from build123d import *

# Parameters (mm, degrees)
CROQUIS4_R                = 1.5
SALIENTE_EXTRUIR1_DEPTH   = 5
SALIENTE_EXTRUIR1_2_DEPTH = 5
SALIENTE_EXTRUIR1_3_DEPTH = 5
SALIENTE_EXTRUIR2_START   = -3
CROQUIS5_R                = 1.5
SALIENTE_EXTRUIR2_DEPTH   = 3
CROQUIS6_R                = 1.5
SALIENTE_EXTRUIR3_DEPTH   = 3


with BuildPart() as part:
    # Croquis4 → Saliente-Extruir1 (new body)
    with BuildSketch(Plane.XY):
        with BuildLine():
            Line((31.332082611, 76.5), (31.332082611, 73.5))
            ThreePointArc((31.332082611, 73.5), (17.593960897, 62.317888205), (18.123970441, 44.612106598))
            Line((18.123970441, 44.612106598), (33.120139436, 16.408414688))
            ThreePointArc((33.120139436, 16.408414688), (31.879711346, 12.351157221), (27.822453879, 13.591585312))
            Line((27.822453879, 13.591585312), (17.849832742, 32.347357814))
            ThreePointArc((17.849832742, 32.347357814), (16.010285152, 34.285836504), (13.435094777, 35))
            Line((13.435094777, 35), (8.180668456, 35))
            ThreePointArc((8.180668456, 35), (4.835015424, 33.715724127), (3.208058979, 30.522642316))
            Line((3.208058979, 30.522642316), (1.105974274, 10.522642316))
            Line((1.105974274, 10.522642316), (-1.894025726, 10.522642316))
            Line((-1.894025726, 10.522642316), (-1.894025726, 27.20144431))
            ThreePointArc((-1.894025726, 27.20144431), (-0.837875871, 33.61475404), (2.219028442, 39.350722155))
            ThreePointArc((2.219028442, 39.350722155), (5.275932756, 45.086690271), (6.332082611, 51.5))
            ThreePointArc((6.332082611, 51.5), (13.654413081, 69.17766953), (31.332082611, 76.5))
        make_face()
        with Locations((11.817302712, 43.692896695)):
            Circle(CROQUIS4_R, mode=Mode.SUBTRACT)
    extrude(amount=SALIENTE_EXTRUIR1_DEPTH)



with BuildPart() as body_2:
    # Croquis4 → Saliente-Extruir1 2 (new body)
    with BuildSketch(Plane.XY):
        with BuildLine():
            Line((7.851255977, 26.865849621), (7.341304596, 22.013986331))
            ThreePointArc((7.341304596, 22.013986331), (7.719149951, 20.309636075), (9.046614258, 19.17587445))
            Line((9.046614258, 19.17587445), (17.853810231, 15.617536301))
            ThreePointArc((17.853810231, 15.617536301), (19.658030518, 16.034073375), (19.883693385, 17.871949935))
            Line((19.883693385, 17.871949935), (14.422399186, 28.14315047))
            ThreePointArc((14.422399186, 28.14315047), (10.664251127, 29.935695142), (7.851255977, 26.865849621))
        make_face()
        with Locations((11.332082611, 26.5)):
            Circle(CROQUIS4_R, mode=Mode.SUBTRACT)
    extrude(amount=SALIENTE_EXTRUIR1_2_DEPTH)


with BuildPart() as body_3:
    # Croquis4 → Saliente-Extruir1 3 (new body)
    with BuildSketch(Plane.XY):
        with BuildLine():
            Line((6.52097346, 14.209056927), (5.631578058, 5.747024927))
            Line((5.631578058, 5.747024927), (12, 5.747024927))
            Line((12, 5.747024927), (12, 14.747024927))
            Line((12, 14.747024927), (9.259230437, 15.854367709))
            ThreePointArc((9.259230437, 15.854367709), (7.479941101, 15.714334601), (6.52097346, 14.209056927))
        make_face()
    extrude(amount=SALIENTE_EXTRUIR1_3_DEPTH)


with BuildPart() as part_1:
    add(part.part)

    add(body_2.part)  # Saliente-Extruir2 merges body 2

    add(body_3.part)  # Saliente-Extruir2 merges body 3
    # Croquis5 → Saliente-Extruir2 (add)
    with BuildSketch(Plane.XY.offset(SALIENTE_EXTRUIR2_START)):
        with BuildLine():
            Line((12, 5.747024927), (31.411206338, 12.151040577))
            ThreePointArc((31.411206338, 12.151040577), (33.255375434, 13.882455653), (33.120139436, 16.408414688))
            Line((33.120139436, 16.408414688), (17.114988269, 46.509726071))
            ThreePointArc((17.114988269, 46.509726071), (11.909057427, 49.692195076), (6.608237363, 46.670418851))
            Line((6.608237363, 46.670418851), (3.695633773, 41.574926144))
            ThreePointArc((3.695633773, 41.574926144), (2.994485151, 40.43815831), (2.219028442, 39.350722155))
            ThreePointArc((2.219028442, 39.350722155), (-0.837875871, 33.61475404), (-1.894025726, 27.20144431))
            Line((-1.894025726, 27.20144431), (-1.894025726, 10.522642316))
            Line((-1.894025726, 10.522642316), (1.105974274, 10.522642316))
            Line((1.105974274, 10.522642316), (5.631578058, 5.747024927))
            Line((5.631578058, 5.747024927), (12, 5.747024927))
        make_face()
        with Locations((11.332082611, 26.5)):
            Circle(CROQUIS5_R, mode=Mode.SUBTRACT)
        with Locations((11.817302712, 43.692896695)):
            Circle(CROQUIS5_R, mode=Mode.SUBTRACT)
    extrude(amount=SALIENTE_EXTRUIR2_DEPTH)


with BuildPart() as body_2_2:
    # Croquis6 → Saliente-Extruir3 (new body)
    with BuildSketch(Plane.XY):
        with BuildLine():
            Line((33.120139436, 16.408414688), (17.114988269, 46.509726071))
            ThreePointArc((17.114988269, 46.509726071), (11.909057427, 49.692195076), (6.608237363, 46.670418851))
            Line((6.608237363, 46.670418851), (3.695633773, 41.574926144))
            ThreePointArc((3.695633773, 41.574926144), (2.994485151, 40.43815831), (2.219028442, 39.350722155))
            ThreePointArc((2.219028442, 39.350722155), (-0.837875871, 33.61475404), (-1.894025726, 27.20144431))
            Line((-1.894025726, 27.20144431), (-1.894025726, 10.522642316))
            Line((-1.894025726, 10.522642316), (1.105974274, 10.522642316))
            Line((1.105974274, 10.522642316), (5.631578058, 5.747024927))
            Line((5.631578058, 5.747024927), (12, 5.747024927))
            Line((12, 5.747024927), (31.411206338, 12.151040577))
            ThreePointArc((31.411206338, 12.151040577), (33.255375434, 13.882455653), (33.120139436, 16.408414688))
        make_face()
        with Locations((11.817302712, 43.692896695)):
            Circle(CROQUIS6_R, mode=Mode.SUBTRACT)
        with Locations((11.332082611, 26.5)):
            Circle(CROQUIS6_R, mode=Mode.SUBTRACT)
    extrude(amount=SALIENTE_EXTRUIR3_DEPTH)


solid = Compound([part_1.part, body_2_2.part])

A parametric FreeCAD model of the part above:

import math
import FreeCAD as App
import Part
import Sketcher
from FreeCAD import Vector
Q = App.Units.Quantity

doc = App.newDocument("Part")
body = doc.addObject("PartDesign::Body", "Body")

# Sketch on XY plane
sketch1 = body.newObject("Sketcher::SketchObject", "Sketch")
sketch1.AttachmentSupport = (doc.getObject("XY_Plane"), [""])
sketch1.MapMode = "FlatFace"
sketch1.addGeometry([
    Part.LineSegment(Vector(31.332083, 73.5, 0), Vector(31.332083, 76.5, 0)),  # 0
    Part.ArcOfCircle(Part.Circle(Vector(31.332083, 51.5, 0), Vector(0, 0, 1), 25), math.radians(90), math.radians(180)),  # 1
    Part.ArcOfCircle(Part.Circle(Vector(-13.667917, 51.5, 0), Vector(0, 0, 1), 20), math.radians(-37.406351), math.radians(0)),  # 2
    Part.ArcOfCircle(Part.Circle(Vector(18.105974, 27.201444, 0), Vector(0, 0, 1), 20), math.radians(142.593649), math.radians(180)),  # 3
    Part.LineSegment(Vector(-1.894026, 27.201444, 0), Vector(-1.894026, 10.522642, 0)),  # 4
    Part.LineSegment(Vector(-1.894026, 10.522642, 0), Vector(1.105974, 10.522642, 0)),  # 5
    Part.LineSegment(Vector(1.105974, 10.522642, 0), Vector(3.208059, 30.522642, 0)),  # 6
    Part.ArcOfCircle(Part.Circle(Vector(8.180668, 30, 0), Vector(0, 0, 1), 5), math.radians(90), math.radians(174)),  # 7
    Part.LineSegment(Vector(8.180668, 35, 0), Vector(13.435095, 35, 0)),  # 8
    Part.ArcOfCircle(Part.Circle(Vector(13.435095, 30, 0), Vector(0, 0, 1), 5), math.radians(28), math.radians(90)),  # 9
    Part.LineSegment(Vector(17.849833, 32.347358, 0), Vector(27.822454, 13.591585, 0)),  # 10
    Part.ArcOfCircle(Part.Circle(Vector(30.471297, 15, 0), Vector(0, 0, 1), 3), math.radians(-152), math.radians(28)),  # 11
    Part.LineSegment(Vector(33.120139, 16.408415, 0), Vector(18.12397, 44.612107, 0)),  # 12
    Part.ArcOfCircle(Part.Circle(Vector(35.782922, 54.001538, 0), Vector(0, 0, 1), 20), math.radians(102.85838), math.radians(208)),  # 13
    Part.Circle(Vector(11.817303, 43.692897, 0), Vector(0, 0, 1), 1.5),  # 14
], False)
sketch1.addConstraint([
    Sketcher.Constraint("Coincident", 0, 2, 1, 1),
    Sketcher.Constraint("Tangent", 1, 2, 2, 2),
    Sketcher.Constraint("Tangent", 2, 1, 3, 1),
    Sketcher.Constraint("Tangent", 3, 2, 4, 1),
    Sketcher.Constraint("Coincident", 4, 2, 5, 1),
    Sketcher.Constraint("Coincident", 5, 2, 6, 1),
    Sketcher.Constraint("Tangent", 6, 2, 7, 2),
    Sketcher.Constraint("Tangent", 7, 1, 8, 1),
    Sketcher.Constraint("Tangent", 8, 2, 9, 2),
    Sketcher.Constraint("Tangent", 9, 1, 10, 1),
    Sketcher.Constraint("Tangent", 10, 2, 11, 1),
    Sketcher.Constraint("Tangent", 11, 2, 12, 1),
    Sketcher.Constraint("Tangent", 12, 2, 13, 2),
    Sketcher.Constraint("Coincident", 13, 1, 0, 1),
    Sketcher.Constraint("Vertical", 0),
    Sketcher.Constraint("Vertical", 4),
    Sketcher.Constraint("Horizontal", 5),
    Sketcher.Constraint("Horizontal", 8),
    Sketcher.Constraint("Equal", 2, 3),
    Sketcher.Constraint("Equal", 7, 9),
    Sketcher.Constraint("Equal", 3, 13),
    Sketcher.Constraint("Parallel", 10, 12),
    Sketcher.Constraint("Horizontal", 1, 3, 2, 3),
    Sketcher.Constraint("Vertical", 1, 3, 0, 2),
    Sketcher.Constraint("Equal", 5, 0),
    Sketcher.Constraint("Diameter", 14, 3.0),
    Sketcher.Constraint("Radius", 1, 25.0),
    Sketcher.Constraint("Radius", 2, 20.0),
    Sketcher.Constraint("Radius", 7, 5.0),
    Sketcher.Constraint("Radius", 11, 3.0),
    Sketcher.Constraint("DistanceX", 5, 1, 5, 2, 3.0),
    Sketcher.Constraint("Angle", 6, Q("84 deg")),
    Sketcher.Constraint("Angle", 10, Q("-62 deg")),
    Sketcher.Constraint("DistanceY", -1, 1, 7, 3, 30.0),
    Sketcher.Constraint("DistanceY", -1, 1, 11, 3, 15.0),
    Sketcher.Constraint("DistanceY", -1, 1, 1, 3, 51.5),
    Sketcher.Constraint("DistanceY", 4, 2, 4, 1, 16.678802),
    Sketcher.Constraint("DistanceY", 3, 2, 6, 2, 3.321198),
    Sketcher.Constraint("DistanceX", 7, 1, 12, 2, 9.943302),
    Sketcher.Constraint("DistanceX", -1, 1, 7, 3, 8.180668),
    Sketcher.Constraint("DistanceX", 14, 3, 3, 3, 6.288672),
    Sketcher.Constraint("DistanceY", 14, 3, 13, 3, 10.308641),
])
pad1 = body.newObject("PartDesign::Pad", "Pad")
pad1.Profile = sketch1
pad1.Length = 5
body2 = doc.addObject("PartDesign::Body", "Body001")

# Sketch on XY plane
sketch2 = body2.newObject("Sketcher::SketchObject", "Sketch001")
sketch2.AttachmentSupport = (doc.getObject("XY_Plane001"), [""])
sketch2.MapMode = "FlatFace"
sketch2.addGeometry([
    Part.LineSegment(Vector(7.851256, 26.86585, 0), Vector(7.341305, 22.013986, 0)),  # 0
    Part.ArcOfCircle(Part.Circle(Vector(10.07711, 21.726442, 0), Vector(0, 0, 1), 2.750875), math.radians(174), math.radians(248)),  # 1
    Part.LineSegment(Vector(9.046614, 19.175874, 0), Vector(17.85381, 15.617536, 0)),  # 2
    Part.ArcOfCircle(Part.Circle(Vector(18.458482, 17.114152, 0), Vector(0, 0, 1), 1.614152), math.radians(-112), math.radians(28)),  # 3
    Part.LineSegment(Vector(19.883693, 17.87195, 0), Vector(14.422399, 28.14315, 0)),  # 4
    Part.ArcOfCircle(Part.Circle(Vector(11.332083, 26.5, 0), Vector(0, 0, 1), 3.5), math.radians(28), math.radians(174)),  # 5
    Part.Circle(Vector(11.332083, 26.5, 0), Vector(0, 0, 1), 1.5),  # 6
], False)
sketch2.addConstraint([
    Sketcher.Constraint("Tangent", 0, 2, 1, 1),
    Sketcher.Constraint("Tangent", 1, 2, 2, 1),
    Sketcher.Constraint("Tangent", 2, 2, 3, 1),
    Sketcher.Constraint("Tangent", 3, 2, 4, 1),
    Sketcher.Constraint("Tangent", 4, 2, 5, 1),
    Sketcher.Constraint("Tangent", 5, 2, 0, 1),
    Sketcher.Constraint("Coincident", 6, 3, 5, 3),
    Sketcher.Constraint("Diameter", 6, 3.0),
    Sketcher.Constraint("Radius", 5, 3.5),
    Sketcher.Constraint("Angle", 0, Q("-96 deg")),
    Sketcher.Constraint("Angle", 2, Q("-22 deg")),
    Sketcher.Constraint("Angle", 4, Q("118 deg")),
    Sketcher.Constraint("DistanceY", -1, 1, 5, 3, 26.5),
    Sketcher.Constraint("Radius", 3, 1.614152),
    Sketcher.Constraint("Radius", 1, 2.750875),
    Sketcher.Constraint("DistanceX", -1, 1, 4, 2, 14.422399),
    Sketcher.Constraint("DistanceX", 5, 3, 3, 3, 7.126399),
])
pad2 = body2.newObject("PartDesign::Pad", "Pad001")
pad2.Profile = sketch2
pad2.Length = 5
body3 = doc.addObject("PartDesign::Body", "Body002")

# Sketch on XY plane
sketch3 = body3.newObject("Sketcher::SketchObject", "Sketch002")
sketch3.AttachmentSupport = (doc.getObject("XY_Plane002"), [""])
sketch3.MapMode = "FlatFace"
sketch3.addGeometry([
    Part.LineSegment(Vector(6.520973, 14.209057, 0), Vector(5.631578, 5.747025, 0)),  # 0
    Part.LineSegment(Vector(5.631578, 5.747025, 0), Vector(12, 5.747025, 0)),  # 1
    Part.LineSegment(Vector(12, 5.747025, 0), Vector(12, 14.747025, 0)),  # 2
    Part.LineSegment(Vector(12, 14.747025, 0), Vector(9.25923, 15.854368, 0)),  # 3
    Part.ArcOfCircle(Part.Circle(Vector(8.510017, 14, 0), Vector(0, 0, 1), 2), math.radians(68), math.radians(174)),  # 4
], False)
sketch3.addConstraint([
    Sketcher.Constraint("Coincident", 0, 2, 1, 1),
    Sketcher.Constraint("Coincident", 1, 2, 2, 1),
    Sketcher.Constraint("Coincident", 2, 2, 3, 1),
    Sketcher.Constraint("Tangent", 3, 2, 4, 1),
    Sketcher.Constraint("Tangent", 4, 2, 0, 1),
    Sketcher.Constraint("Horizontal", 1),
    Sketcher.Constraint("Vertical", 2),
    Sketcher.Constraint("Radius", 4, 2.0),
    Sketcher.Constraint("DistanceY", 2, 1, 2, 2, 9.0),
    Sketcher.Constraint("Angle", 0, Q("-96 deg")),
    Sketcher.Constraint("Angle", 3, Q("158 deg")),
    Sketcher.Constraint("DistanceY", -1, 1, 4, 3, 14.0),
    Sketcher.Constraint("DistanceX", -1, 1, 1, 2, 12.0),
    Sketcher.Constraint("DistanceX", 1, 1, 1, 2, 6.368422),
])
pad3 = body3.newObject("PartDesign::Pad", "Pad002")
pad3.Profile = sketch3
pad3.Length = 5
body.AllowCompound = True
doc.recompute()

boolean = body.newObject("PartDesign::Boolean", "Boolean")
boolean.Type = "Fuse"
boolean.addObjects([body2])
doc.recompute()

boolean2 = body.newObject("PartDesign::Boolean", "Boolean001")
boolean2.Type = "Fuse"
boolean2.addObjects([body3])

# Sketch on XY plane
sketch4 = body.newObject("Sketcher::SketchObject", "Sketch003")
sketch4.AttachmentSupport = (doc.getObject("XY_Plane"), [""])
sketch4.MapMode = "FlatFace"
sketch4.AttachmentOffset = App.Placement(Vector(0, 0, -3), App.Rotation())
sketch4.addGeometry([
    Part.LineSegment(Vector(12, 5.747025, 0), Vector(31.411206, 12.151041, 0)),  # 0
    Part.ArcOfCircle(Part.Circle(Vector(30.471297, 15, 0), Vector(0, 0, 1), 3), math.radians(-71.741589), math.radians(28)),  # 1
    Part.LineSegment(Vector(33.120139, 16.408415, 0), Vector(17.114988, 46.509726, 0)),  # 2
    Part.ArcOfCircle(Part.Circle(Vector(11.817303, 43.692897, 0), Vector(0, 0, 1), 6), math.radians(28), math.radians(150.247546)),  # 3
    Part.LineSegment(Vector(6.608237, 46.670419, 0), Vector(3.695634, 41.574926, 0)),  # 4
    Part.ArcOfCircle(Part.Circle(Vector(-13.667918, 51.5, 0), Vector(0, 0, 1), 20), math.radians(-37.406351), math.radians(-29.752454)),  # 5
    Part.ArcOfCircle(Part.Circle(Vector(18.105974, 27.201444, 0), Vector(0, 0, 1), 20), math.radians(142.593649), math.radians(180)),  # 6
    Part.LineSegment(Vector(-1.894026, 27.201444, 0), Vector(-1.894026, 10.522642, 0)),  # 7
    Part.LineSegment(Vector(-1.894026, 10.522642, 0), Vector(1.105974, 10.522642, 0)),  # 8
    Part.LineSegment(Vector(1.105974, 10.522642, 0), Vector(5.631578, 5.747025, 0)),  # 9
    Part.LineSegment(Vector(5.631578, 5.747025, 0), Vector(12, 5.747025, 0)),  # 10
    Part.Circle(Vector(11.332083, 26.5, 0), Vector(0, 0, 1), 1.5),  # 11
    Part.Circle(Vector(11.817303, 43.692897, 0), Vector(0, 0, 1), 1.5),  # 12
], False)
sketch4.addConstraint([
    Sketcher.Constraint("Tangent", 0, 2, 1, 1),
    Sketcher.Constraint("Tangent", 1, 2, 2, 1),
    Sketcher.Constraint("Tangent", 2, 2, 3, 1),
    Sketcher.Constraint("Tangent", 3, 2, 4, 1),
    Sketcher.Constraint("Tangent", 4, 2, 5, 2),
    Sketcher.Constraint("Tangent", 5, 1, 6, 1),
    Sketcher.Constraint("Tangent", 6, 2, 7, 1),
    Sketcher.Constraint("Coincident", 7, 2, 8, 1),
    Sketcher.Constraint("Coincident", 8, 2, 9, 1),
    Sketcher.Constraint("Coincident", 9, 2, 10, 1),
    Sketcher.Constraint("Coincident", 10, 2, 0, 1),
    Sketcher.Constraint("Vertical", 7),
    Sketcher.Constraint("Horizontal", 8),
    Sketcher.Constraint("Horizontal", 10),
    Sketcher.Constraint("Coincident", 12, 3, 3, 3),
    Sketcher.Constraint("Equal", 5, 6),
    Sketcher.Constraint("Equal", 11, 12),
    Sketcher.Constraint("Diameter", 11, 3.0),
    Sketcher.Constraint("Radius", 1, 3.0),
    Sketcher.Constraint("Radius", 3, 6.0),
    Sketcher.Constraint("Radius", 5, 20.0),
    Sketcher.Constraint("DistanceX", 8, 1, 8, 2, 3.0),
    Sketcher.Constraint("Angle", 2, Q("118 deg")),
    Sketcher.Constraint("DistanceY", -1, 1, 1, 3, 15.0),
    Sketcher.Constraint("DistanceX", -1, 1, 10, 2, 12.0),
    Sketcher.Constraint("DistanceX", 5, 3, 11, 3, 25.0),
    Sketcher.Constraint("DistanceY", 11, 3, 5, 3, 25.0),
    Sketcher.Constraint("DistanceY", -1, 1, 5, 3, 51.5),
    Sketcher.Constraint("DistanceY", 7, 2, 7, 1, 16.678802),
    Sketcher.Constraint("DistanceX", 10, 1, 10, 2, 6.368422),
    Sketcher.Constraint("DistanceY", 4, 2, 2, 2, 4.9348),
    Sketcher.Constraint("Distance", 0, 20.440312),
    Sketcher.Constraint("DistanceY", -1, 1, 0, 2, 12.151041),
    Sketcher.Constraint("DistanceX", -1, 1, 2, 2, 17.114988),
    Sketcher.Constraint("DistanceX", -1, 1, 5, 1, 2.219028),
])
pad4 = body.newObject("PartDesign::Pad", "Pad003")
pad4.Profile = sketch4
pad4.Length = 3
body4 = doc.addObject("PartDesign::Body", "Body003")

# Sketch on XY plane
sketch5 = body4.newObject("Sketcher::SketchObject", "Sketch004")
sketch5.AttachmentSupport = (doc.getObject("XY_Plane003"), [""])
sketch5.MapMode = "FlatFace"
sketch5.addGeometry([
    Part.LineSegment(Vector(33.120139, 16.408415, 0), Vector(17.114988, 46.509726, 0)),  # 0
    Part.ArcOfCircle(Part.Circle(Vector(11.817303, 43.692897, 0), Vector(0, 0, 1), 6), math.radians(28), math.radians(150.247546)),  # 1
    Part.LineSegment(Vector(6.608237, 46.670419, 0), Vector(3.695634, 41.574926, 0)),  # 2
    Part.ArcOfCircle(Part.Circle(Vector(-13.667918, 51.5, 0), Vector(0, 0, 1), 20), math.radians(-37.406351), math.radians(-29.752454)),  # 3
    Part.ArcOfCircle(Part.Circle(Vector(18.105974, 27.201444, 0), Vector(0, 0, 1), 20), math.radians(142.593649), math.radians(180)),  # 4
    Part.LineSegment(Vector(-1.894026, 27.201444, 0), Vector(-1.894026, 10.522642, 0)),  # 5
    Part.LineSegment(Vector(-1.894026, 10.522642, 0), Vector(1.105974, 10.522642, 0)),  # 6
    Part.LineSegment(Vector(1.105974, 10.522642, 0), Vector(5.631578, 5.747025, 0)),  # 7
    Part.LineSegment(Vector(5.631578, 5.747025, 0), Vector(12, 5.747025, 0)),  # 8
    Part.LineSegment(Vector(12, 5.747025, 0), Vector(31.411206, 12.151041, 0)),  # 9
    Part.ArcOfCircle(Part.Circle(Vector(30.471297, 15, 0), Vector(0, 0, 1), 3), math.radians(-71.741589), math.radians(28)),  # 10
    Part.Circle(Vector(11.332083, 26.5, 0), Vector(0, 0, 1), 1.5),  # 11
    Part.Circle(Vector(11.817303, 43.692897, 0), Vector(0, 0, 1), 1.5),  # 12
], False)
sketch5.addConstraint([
    Sketcher.Constraint("Tangent", 0, 2, 1, 1),
    Sketcher.Constraint("Tangent", 1, 2, 2, 1),
    Sketcher.Constraint("Tangent", 2, 2, 3, 2),
    Sketcher.Constraint("Tangent", 3, 1, 4, 1),
    Sketcher.Constraint("Tangent", 4, 2, 5, 1),
    Sketcher.Constraint("Coincident", 5, 2, 6, 1),
    Sketcher.Constraint("Coincident", 6, 2, 7, 1),
    Sketcher.Constraint("Coincident", 7, 2, 8, 1),
    Sketcher.Constraint("Coincident", 8, 2, 9, 1),
    Sketcher.Constraint("Tangent", 9, 2, 10, 1),
    Sketcher.Constraint("Tangent", 10, 2, 0, 1),
    Sketcher.Constraint("Vertical", 5),
    Sketcher.Constraint("Horizontal", 6),
    Sketcher.Constraint("Horizontal", 8),
    Sketcher.Constraint("Coincident", 12, 3, 1, 3),
    Sketcher.Constraint("Equal", 3, 4),
    Sketcher.Constraint("Equal", 11, 12),
    Sketcher.Constraint("Diameter", 11, 3.0),
    Sketcher.Constraint("Radius", 1, 6.0),
    Sketcher.Constraint("Radius", 3, 20.0),
    Sketcher.Constraint("Radius", 10, 3.0),
    Sketcher.Constraint("DistanceX", 6, 1, 6, 2, 3.0),
    Sketcher.Constraint("Angle", 0, Q("118 deg")),
    Sketcher.Constraint("DistanceY", -1, 1, 10, 3, 15.0),
    Sketcher.Constraint("DistanceX", -1, 1, 8, 2, 12.0),
    Sketcher.Constraint("DistanceX", 3, 3, 11, 3, 25.0),
    Sketcher.Constraint("DistanceY", 11, 3, 3, 3, 25.0),
    Sketcher.Constraint("DistanceY", -1, 1, 3, 3, 51.5),
    Sketcher.Constraint("DistanceY", 5, 2, 5, 1, 16.678802),
    Sketcher.Constraint("DistanceX", 8, 1, 8, 2, 6.368422),
    Sketcher.Constraint("DistanceY", 2, 2, 0, 2, 4.9348),
    Sketcher.Constraint("Distance", 9, 20.440312),
    Sketcher.Constraint("DistanceX", -1, 1, 0, 2, 17.114988),
    Sketcher.Constraint("DistanceY", -1, 1, 1, 2, 46.670419),
    Sketcher.Constraint("DistanceX", -1, 1, 3, 1, 2.219028),
])
pad5 = body4.newObject("PartDesign::Pad", "Pad004")
pad5.Profile = sketch5
pad5.Length = 3

doc.recompute()
